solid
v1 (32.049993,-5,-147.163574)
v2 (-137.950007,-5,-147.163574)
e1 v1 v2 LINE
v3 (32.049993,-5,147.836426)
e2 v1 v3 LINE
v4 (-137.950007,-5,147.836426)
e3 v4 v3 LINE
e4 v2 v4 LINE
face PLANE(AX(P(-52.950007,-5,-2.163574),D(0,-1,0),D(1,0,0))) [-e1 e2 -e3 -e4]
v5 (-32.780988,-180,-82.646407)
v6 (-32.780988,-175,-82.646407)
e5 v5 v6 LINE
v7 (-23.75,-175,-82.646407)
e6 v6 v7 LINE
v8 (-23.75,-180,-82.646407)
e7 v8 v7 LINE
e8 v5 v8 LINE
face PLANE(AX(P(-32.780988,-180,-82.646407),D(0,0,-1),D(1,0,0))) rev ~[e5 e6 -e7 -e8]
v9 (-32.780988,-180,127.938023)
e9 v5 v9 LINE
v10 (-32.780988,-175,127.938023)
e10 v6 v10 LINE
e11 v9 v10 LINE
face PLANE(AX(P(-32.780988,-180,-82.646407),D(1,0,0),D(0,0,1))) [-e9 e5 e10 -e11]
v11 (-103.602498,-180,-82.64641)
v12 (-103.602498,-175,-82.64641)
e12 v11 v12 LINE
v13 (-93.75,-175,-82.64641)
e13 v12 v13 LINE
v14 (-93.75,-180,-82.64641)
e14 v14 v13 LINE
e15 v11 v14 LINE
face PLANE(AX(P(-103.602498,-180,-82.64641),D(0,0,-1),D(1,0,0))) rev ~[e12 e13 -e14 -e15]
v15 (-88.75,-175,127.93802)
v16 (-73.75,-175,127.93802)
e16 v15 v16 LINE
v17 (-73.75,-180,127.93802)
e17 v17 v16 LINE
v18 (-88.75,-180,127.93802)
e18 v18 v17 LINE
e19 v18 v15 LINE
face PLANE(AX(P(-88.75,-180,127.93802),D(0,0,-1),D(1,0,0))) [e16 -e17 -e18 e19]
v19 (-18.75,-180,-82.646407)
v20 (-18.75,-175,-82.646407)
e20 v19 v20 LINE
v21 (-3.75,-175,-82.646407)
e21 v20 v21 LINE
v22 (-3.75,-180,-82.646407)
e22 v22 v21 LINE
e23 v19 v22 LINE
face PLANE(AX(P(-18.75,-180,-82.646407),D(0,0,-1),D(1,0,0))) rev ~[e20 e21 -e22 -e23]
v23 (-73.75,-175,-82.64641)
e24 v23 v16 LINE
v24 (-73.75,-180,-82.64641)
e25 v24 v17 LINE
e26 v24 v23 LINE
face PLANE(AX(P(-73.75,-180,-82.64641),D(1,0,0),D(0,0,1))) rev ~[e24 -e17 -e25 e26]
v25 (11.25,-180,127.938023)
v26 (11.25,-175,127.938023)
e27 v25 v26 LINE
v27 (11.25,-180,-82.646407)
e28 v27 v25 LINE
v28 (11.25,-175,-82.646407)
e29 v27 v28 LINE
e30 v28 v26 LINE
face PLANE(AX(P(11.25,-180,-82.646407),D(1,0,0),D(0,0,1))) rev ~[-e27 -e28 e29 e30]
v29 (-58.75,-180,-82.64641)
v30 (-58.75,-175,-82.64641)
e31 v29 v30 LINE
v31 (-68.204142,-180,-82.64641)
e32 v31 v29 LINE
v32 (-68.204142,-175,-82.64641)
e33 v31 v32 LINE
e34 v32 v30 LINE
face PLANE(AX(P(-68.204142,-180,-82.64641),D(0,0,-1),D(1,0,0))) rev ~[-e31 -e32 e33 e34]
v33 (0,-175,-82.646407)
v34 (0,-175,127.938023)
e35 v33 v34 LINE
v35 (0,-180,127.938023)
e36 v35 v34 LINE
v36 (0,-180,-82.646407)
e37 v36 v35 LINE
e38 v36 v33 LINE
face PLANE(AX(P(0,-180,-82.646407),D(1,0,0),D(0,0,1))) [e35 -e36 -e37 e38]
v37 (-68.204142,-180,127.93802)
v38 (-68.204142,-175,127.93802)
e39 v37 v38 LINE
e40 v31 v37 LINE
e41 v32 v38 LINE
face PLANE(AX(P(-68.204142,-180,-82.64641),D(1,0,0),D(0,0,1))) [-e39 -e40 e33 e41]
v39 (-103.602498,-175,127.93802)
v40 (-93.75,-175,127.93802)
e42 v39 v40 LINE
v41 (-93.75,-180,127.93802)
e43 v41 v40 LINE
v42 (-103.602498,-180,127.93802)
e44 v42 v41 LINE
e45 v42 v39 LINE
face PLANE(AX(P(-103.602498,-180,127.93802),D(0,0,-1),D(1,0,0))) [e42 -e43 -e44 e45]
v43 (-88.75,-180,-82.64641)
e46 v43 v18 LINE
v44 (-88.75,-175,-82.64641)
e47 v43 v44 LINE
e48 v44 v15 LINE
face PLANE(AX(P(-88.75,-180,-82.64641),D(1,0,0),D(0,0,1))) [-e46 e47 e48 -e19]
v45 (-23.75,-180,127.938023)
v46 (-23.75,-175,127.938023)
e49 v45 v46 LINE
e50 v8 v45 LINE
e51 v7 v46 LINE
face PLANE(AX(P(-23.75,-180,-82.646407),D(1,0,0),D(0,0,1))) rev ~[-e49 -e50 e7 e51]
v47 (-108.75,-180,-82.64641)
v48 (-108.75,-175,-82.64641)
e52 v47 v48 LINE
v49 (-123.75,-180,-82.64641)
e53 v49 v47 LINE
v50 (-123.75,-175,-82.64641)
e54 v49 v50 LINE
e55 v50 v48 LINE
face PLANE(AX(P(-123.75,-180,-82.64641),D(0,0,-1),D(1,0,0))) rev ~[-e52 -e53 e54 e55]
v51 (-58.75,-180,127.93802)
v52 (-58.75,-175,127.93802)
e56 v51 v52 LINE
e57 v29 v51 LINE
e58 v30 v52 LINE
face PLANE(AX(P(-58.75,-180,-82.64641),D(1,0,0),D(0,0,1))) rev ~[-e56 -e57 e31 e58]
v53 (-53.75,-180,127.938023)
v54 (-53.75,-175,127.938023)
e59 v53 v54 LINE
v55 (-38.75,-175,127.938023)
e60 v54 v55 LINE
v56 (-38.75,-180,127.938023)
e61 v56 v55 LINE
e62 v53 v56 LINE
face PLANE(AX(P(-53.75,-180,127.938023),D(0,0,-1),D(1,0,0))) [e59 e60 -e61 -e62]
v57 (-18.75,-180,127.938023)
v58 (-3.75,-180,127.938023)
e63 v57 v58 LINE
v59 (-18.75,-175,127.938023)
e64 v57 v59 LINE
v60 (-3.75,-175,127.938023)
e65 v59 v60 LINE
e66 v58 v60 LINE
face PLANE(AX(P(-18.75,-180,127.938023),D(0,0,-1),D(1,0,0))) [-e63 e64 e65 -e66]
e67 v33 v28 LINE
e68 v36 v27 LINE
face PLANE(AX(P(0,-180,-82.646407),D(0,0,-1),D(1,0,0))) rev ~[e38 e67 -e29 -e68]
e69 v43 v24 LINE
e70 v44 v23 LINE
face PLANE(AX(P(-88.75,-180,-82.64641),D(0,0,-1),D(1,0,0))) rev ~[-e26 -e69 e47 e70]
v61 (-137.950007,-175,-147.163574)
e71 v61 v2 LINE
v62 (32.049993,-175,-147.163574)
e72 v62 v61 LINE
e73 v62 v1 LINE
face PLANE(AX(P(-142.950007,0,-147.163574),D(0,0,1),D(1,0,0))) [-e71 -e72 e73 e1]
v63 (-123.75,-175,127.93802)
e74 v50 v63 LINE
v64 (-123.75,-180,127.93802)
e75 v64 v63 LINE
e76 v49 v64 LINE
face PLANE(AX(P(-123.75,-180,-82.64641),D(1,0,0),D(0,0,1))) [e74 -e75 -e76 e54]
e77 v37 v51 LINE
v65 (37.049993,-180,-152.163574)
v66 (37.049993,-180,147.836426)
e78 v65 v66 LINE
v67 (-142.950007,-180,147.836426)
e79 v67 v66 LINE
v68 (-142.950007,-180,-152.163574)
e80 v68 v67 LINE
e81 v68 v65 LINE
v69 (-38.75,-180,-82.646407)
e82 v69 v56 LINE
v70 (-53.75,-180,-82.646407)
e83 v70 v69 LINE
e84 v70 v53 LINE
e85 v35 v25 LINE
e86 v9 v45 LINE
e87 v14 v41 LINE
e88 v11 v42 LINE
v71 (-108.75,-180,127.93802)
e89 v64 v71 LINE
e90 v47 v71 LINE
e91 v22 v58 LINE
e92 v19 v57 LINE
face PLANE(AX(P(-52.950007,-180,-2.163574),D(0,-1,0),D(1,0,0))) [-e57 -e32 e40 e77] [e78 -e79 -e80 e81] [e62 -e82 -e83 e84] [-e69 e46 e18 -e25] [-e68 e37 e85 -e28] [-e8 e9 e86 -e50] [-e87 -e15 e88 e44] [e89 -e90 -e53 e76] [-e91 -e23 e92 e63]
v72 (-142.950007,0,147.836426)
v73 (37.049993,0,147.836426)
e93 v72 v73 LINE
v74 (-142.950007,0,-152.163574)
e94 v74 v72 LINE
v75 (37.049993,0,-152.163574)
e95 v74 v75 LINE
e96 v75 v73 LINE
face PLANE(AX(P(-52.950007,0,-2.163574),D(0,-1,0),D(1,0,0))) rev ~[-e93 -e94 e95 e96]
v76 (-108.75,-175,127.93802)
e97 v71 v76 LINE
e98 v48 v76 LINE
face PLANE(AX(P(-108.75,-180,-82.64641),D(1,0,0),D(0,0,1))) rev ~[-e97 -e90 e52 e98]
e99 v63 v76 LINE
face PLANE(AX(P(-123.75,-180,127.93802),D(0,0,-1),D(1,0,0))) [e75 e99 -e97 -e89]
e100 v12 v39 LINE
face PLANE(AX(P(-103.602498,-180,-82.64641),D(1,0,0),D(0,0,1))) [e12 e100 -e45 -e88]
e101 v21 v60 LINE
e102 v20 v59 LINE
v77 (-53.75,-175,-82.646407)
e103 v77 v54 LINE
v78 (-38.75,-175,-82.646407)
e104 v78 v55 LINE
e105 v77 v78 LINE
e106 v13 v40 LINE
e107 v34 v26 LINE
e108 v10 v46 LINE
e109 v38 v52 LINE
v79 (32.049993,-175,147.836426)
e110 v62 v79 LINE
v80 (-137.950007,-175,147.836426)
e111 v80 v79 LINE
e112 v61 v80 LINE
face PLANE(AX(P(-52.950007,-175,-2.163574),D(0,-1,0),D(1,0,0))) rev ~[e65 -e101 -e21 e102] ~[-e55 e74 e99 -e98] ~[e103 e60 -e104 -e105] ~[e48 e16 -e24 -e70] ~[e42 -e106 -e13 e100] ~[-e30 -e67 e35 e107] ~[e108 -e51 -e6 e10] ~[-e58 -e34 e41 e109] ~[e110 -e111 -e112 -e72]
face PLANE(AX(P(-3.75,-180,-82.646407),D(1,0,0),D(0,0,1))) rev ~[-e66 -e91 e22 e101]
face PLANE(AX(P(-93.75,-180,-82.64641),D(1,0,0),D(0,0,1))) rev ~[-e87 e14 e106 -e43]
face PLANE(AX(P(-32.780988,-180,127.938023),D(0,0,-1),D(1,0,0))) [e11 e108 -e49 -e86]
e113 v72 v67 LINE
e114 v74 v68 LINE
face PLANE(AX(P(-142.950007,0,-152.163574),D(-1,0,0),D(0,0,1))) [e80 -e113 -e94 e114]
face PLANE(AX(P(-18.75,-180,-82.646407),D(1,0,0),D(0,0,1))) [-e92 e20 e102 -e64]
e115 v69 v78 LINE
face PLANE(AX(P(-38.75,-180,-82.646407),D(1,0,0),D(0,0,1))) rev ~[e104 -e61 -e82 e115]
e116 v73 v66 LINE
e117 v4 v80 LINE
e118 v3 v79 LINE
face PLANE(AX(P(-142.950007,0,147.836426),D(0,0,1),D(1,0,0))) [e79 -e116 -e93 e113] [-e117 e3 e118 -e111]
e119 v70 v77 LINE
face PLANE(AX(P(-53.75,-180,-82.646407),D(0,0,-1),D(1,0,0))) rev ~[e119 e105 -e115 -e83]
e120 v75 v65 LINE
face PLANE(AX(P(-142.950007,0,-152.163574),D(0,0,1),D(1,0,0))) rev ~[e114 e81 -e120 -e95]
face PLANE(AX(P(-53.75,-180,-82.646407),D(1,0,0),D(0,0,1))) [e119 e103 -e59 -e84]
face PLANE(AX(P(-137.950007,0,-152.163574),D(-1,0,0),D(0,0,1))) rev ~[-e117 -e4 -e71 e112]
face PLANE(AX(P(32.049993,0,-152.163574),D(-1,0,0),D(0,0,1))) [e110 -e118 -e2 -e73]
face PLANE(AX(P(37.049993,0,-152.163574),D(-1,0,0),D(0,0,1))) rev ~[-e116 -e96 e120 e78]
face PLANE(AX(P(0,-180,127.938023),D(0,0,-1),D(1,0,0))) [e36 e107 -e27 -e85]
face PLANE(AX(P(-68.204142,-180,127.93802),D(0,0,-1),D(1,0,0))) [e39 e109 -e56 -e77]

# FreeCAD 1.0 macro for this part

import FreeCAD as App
import Part
import Sketcher
from FreeCAD import Vector


def faces_at(feature, points):
    """Names of the faces that lie closest to the given points."""
    faces = feature.Shape.Faces
    near = lambda p: min(range(len(faces)), key=lambda i: faces[i].distToShape(Part.Vertex(*p))[0])
    return sorted({f"Face{near(p) + 1}" for p in points})


def add_polygon(sketch, points):
    """Adds a closed chain of lines whose ends are joined by coincident constraints."""
    first, n = sketch.GeometryCount, len(points)
    for a, b in zip(points, points[1:] + points[:1]):
        sketch.addGeometry(Part.LineSegment(App.Vector(*a, 0), App.Vector(*b, 0)), False)
    for i in range(n):
        sketch.addConstraint(Sketcher.Constraint("Coincident", first + i, 2, first + (i + 1) % n, 1))

doc = App.newDocument("Part")
body = doc.addObject("PartDesign::Body", "Body")

sketch1 = doc.addObject("Sketcher::SketchObject", "Sketch")
body.addObject(sketch1)
sketch1.AttachmentSupport = (doc.XZ_Plane, [""])
sketch1.MapMode = "FlatFace"
add_polygon(sketch1, [(-143, 148), (-143, -152), (37, -152), (37, 148)])
sketch1.addConstraint(Sketcher.Constraint("Vertical", 0))
sketch1.addConstraint(Sketcher.Constraint("Horizontal", 1))
sketch1.addConstraint(Sketcher.Constraint("Vertical", 2))
sketch1.addConstraint(Sketcher.Constraint("Horizontal", 3))
sketch1.addConstraint(Sketcher.Constraint("DistanceX", 1, 1, 1, 2, 180.0))
sketch1.addConstraint(Sketcher.Constraint("DistanceY", 0, 2, 0, 1, 300.0))
sketch1.addConstraint(Sketcher.Constraint("DistanceX", 0, 2, -1, 1, 142.950007))
sketch1.addConstraint(Sketcher.Constraint("DistanceY", 0, 2, -1, 1, 152.163574))
pad1 = doc.addObject("PartDesign::Pad", "Pad")
body.addObject(pad1)
pad1.Profile = sketch1
pad1.Length = 180
doc.recompute()

thickness = doc.addObject("PartDesign::Thickness", "Thickness")
body.addObject(thickness)
thickness.Base = (pad1, faces_at(pad1, [(-52.95, -90, 147.836)]))
thickness.Value = 5
thickness.Reversed = True
thickness.Join = "Arc"

sketch2 = doc.addObject("Sketcher::SketchObject", "Sketch001")
body.addObject(sketch2)
sketch2.AttachmentSupport = (doc.XZ_Plane, [""])
sketch2.MapMode = "FlatFace"
sketch2.AttachmentOffset = App.Placement(Vector(0, 0, 180), App.Rotation())
add_polygon(sketch2, [(-124, 128), (-124, -83), (-109, -83), (-109, 128)])
add_polygon(sketch2, [(-104, 128), (-104, -83), (-94, -83), (-94, 128)])
add_polygon(sketch2, [(-89, 128), (-89, -83), (-74, -83), (-74, 128)])
add_polygon(sketch2, [(-68, 128), (-68, -83), (-59, -83), (-59, 128)])
add_polygon(sketch2, [(-54, 128), (-54, -83), (-39, -83), (-39, 128)])
add_polygon(sketch2, [(-33, 128), (-33, -83), (-24, -83), (-24, 128)])
add_polygon(sketch2, [(-19, 128), (-19, -83), (-4, -83), (-4, 128)])
add_polygon(sketch2, [(0, 128), (0, -83), (11, -83), (11, 128)])
sketch2.addConstraint(Sketcher.Constraint("Vertical", 0))
sketch2.addConstraint(Sketcher.Constraint("Horizontal", 1))
sketch2.addConstraint(Sketcher.Constraint("Vertical", 2))
sketch2.addConstraint(Sketcher.Constraint("Horizontal", 3))
sketch2.addConstraint(Sketcher.Constraint("Vertical", 4))
sketch2.addConstraint(Sketcher.Constraint("Horizontal", 5))
sketch2.addConstraint(Sketcher.Constraint("Vertical", 6))
sketch2.addConstraint(Sketcher.Constraint("Horizontal", 7))
sketch2.addConstraint(Sketcher.Constraint("Vertical", 8))
sketch2.addConstraint(Sketcher.Constraint("Horizontal", 9))
sketch2.addConstraint(Sketcher.Constraint("Vertical", 10))
sketch2.addConstraint(Sketcher.Constraint("Horizontal", 11))
sketch2.addConstraint(Sketcher.Constraint("Vertical", 12))
sketch2.addConstraint(Sketcher.Constraint("Horizontal", 13))
sketch2.addConstraint(Sketcher.Constraint("Vertical", 14))
sketch2.addConstraint(Sketcher.Constraint("Horizontal", 15))
sketch2.addConstraint(Sketcher.Constraint("Vertical", 16))
sketch2.addConstraint(Sketcher.Constraint("Horizontal", 17))
sketch2.addConstraint(Sketcher.Constraint("Vertical", 18))
sketch2.addConstraint(Sketcher.Constraint("Horizontal", 19))
sketch2.addConstraint(Sketcher.Constraint("Vertical", 20))
sketch2.addConstraint(Sketcher.Constraint("Horizontal", 21))
sketch2.addConstraint(Sketcher.Constraint("Vertical", 22))
sketch2.addConstraint(Sketcher.Constraint("Horizontal", 23))
sketch2.addConstraint(Sketcher.Constraint("Vertical", 24))
sketch2.addConstraint(Sketcher.Constraint("Horizontal", 25))
sketch2.addConstraint(Sketcher.Constraint("Vertical", 26))
sketch2.addConstraint(Sketcher.Constraint("Horizontal", 27))
sketch2.addConstraint(Sketcher.Constraint("Vertical", 28))
sketch2.addConstraint(Sketcher.Constraint("Horizontal", 29))
sketch2.addConstraint(Sketcher.Constraint("Vertical", 30))
sketch2.addConstraint(Sketcher.Constraint("Horizontal", 31))
sketch2.addConstraint(Sketcher.Constraint("PointOnObject", 28, 2, -2))
sketch2.addConstraint(Sketcher.Constraint("Horizontal", 1, 2, 4, 2))
sketch2.addConstraint(Sketcher.Constraint("Horizontal", 3, 2, 6, 2))
sketch2.addConstraint(Sketcher.Constraint("Horizontal", 5, 2, 8, 2))
sketch2.addConstraint(Sketcher.Constraint("Horizontal", 7, 2, 10, 2))
sketch2.addConstraint(Sketcher.Constraint("Horizontal", 9, 2, 12, 2))
sketch2.addConstraint(Sketcher.Constraint("Horizontal", 11, 2, 14, 2))
sketch2.addConstraint(Sketcher.Constraint("Horizontal", 17, 2, 20, 2))
sketch2.addConstraint(Sketcher.Constraint("Horizontal", 19, 2, 22, 2))
sketch2.addConstraint(Sketcher.Constraint("Horizontal", 21, 2, 24, 2))
sketch2.addConstraint(Sketcher.Constraint("Horizontal", 23, 2, 26, 2))
sketch2.addConstraint(Sketcher.Constraint("Horizontal", 25, 2, 28, 2))
sketch2.addConstraint(Sketcher.Constraint("Horizontal", 27, 2, 30, 2))
sketch2.addConstraint(Sketcher.Constraint("Equal", 3, 9))
sketch2.addConstraint(Sketcher.Constraint("Equal", 11, 17))
sketch2.addConstraint(Sketcher.Constraint("Equal", 19, 25))
sketch2.addConstraint(Sketcher.Constraint("Equal", 14, 16))
sketch2.addConstraint(Sketcher.Constraint("DistanceX", 1, 1, 1, 2, 15.0))
sketch2.addConstraint(Sketcher.Constraint("DistanceX", 1, 2, 5, 2, 15.0))
sketch2.addConstraint(Sketcher.Constraint("DistanceX", 5, 2, 8, 2, 5.0))
sketch2.addConstraint(Sketcher.Constraint("DistanceX", 9, 2, 13, 2, 15.0))
sketch2.addConstraint(Sketcher.Constraint("DistanceX", 13, 2, 16, 2, 5.0))
sketch2.addConstraint(Sketcher.Constraint("DistanceX", 17, 2, 21, 2, 15.0))
sketch2.addConstraint(Sketcher.Constraint("DistanceX", 21, 2, 24, 2, 5.0))
sketch2.addConstraint(Sketcher.Constraint("DistanceX", 25, 2, 29, 2, 15.0))
sketch2.addConstraint(Sketcher.Constraint("DistanceX", 29, 1, 29, 2, 11.25))
sketch2.addConstraint(Sketcher.Constraint("DistanceX", 21, 1, 21, 2, 9.030989))
sketch2.addConstraint(Sketcher.Constraint("DistanceY", 0, 2, 0, 1, 210.58443))
sketch2.addConstraint(Sketcher.Constraint("DistanceX", 5, 1, 5, 2, 9.852498))
sketch2.addConstraint(Sketcher.Constraint("DistanceX", 13, 1, 13, 2, 9.454142))
sketch2.addConstraint(Sketcher.Constraint("DistanceY", 0, 2, -1, 1, 82.64641))
sketch2.addConstraint(Sketcher.Constraint("DistanceY", 16, 2, -1, 1, 82.646407))
pocket1 = doc.addObject("PartDesign::Pocket", "Pocket")
body.addObject(pocket1)
pocket1.Profile = sketch2
pocket1.Length = 25

doc.recompute()
